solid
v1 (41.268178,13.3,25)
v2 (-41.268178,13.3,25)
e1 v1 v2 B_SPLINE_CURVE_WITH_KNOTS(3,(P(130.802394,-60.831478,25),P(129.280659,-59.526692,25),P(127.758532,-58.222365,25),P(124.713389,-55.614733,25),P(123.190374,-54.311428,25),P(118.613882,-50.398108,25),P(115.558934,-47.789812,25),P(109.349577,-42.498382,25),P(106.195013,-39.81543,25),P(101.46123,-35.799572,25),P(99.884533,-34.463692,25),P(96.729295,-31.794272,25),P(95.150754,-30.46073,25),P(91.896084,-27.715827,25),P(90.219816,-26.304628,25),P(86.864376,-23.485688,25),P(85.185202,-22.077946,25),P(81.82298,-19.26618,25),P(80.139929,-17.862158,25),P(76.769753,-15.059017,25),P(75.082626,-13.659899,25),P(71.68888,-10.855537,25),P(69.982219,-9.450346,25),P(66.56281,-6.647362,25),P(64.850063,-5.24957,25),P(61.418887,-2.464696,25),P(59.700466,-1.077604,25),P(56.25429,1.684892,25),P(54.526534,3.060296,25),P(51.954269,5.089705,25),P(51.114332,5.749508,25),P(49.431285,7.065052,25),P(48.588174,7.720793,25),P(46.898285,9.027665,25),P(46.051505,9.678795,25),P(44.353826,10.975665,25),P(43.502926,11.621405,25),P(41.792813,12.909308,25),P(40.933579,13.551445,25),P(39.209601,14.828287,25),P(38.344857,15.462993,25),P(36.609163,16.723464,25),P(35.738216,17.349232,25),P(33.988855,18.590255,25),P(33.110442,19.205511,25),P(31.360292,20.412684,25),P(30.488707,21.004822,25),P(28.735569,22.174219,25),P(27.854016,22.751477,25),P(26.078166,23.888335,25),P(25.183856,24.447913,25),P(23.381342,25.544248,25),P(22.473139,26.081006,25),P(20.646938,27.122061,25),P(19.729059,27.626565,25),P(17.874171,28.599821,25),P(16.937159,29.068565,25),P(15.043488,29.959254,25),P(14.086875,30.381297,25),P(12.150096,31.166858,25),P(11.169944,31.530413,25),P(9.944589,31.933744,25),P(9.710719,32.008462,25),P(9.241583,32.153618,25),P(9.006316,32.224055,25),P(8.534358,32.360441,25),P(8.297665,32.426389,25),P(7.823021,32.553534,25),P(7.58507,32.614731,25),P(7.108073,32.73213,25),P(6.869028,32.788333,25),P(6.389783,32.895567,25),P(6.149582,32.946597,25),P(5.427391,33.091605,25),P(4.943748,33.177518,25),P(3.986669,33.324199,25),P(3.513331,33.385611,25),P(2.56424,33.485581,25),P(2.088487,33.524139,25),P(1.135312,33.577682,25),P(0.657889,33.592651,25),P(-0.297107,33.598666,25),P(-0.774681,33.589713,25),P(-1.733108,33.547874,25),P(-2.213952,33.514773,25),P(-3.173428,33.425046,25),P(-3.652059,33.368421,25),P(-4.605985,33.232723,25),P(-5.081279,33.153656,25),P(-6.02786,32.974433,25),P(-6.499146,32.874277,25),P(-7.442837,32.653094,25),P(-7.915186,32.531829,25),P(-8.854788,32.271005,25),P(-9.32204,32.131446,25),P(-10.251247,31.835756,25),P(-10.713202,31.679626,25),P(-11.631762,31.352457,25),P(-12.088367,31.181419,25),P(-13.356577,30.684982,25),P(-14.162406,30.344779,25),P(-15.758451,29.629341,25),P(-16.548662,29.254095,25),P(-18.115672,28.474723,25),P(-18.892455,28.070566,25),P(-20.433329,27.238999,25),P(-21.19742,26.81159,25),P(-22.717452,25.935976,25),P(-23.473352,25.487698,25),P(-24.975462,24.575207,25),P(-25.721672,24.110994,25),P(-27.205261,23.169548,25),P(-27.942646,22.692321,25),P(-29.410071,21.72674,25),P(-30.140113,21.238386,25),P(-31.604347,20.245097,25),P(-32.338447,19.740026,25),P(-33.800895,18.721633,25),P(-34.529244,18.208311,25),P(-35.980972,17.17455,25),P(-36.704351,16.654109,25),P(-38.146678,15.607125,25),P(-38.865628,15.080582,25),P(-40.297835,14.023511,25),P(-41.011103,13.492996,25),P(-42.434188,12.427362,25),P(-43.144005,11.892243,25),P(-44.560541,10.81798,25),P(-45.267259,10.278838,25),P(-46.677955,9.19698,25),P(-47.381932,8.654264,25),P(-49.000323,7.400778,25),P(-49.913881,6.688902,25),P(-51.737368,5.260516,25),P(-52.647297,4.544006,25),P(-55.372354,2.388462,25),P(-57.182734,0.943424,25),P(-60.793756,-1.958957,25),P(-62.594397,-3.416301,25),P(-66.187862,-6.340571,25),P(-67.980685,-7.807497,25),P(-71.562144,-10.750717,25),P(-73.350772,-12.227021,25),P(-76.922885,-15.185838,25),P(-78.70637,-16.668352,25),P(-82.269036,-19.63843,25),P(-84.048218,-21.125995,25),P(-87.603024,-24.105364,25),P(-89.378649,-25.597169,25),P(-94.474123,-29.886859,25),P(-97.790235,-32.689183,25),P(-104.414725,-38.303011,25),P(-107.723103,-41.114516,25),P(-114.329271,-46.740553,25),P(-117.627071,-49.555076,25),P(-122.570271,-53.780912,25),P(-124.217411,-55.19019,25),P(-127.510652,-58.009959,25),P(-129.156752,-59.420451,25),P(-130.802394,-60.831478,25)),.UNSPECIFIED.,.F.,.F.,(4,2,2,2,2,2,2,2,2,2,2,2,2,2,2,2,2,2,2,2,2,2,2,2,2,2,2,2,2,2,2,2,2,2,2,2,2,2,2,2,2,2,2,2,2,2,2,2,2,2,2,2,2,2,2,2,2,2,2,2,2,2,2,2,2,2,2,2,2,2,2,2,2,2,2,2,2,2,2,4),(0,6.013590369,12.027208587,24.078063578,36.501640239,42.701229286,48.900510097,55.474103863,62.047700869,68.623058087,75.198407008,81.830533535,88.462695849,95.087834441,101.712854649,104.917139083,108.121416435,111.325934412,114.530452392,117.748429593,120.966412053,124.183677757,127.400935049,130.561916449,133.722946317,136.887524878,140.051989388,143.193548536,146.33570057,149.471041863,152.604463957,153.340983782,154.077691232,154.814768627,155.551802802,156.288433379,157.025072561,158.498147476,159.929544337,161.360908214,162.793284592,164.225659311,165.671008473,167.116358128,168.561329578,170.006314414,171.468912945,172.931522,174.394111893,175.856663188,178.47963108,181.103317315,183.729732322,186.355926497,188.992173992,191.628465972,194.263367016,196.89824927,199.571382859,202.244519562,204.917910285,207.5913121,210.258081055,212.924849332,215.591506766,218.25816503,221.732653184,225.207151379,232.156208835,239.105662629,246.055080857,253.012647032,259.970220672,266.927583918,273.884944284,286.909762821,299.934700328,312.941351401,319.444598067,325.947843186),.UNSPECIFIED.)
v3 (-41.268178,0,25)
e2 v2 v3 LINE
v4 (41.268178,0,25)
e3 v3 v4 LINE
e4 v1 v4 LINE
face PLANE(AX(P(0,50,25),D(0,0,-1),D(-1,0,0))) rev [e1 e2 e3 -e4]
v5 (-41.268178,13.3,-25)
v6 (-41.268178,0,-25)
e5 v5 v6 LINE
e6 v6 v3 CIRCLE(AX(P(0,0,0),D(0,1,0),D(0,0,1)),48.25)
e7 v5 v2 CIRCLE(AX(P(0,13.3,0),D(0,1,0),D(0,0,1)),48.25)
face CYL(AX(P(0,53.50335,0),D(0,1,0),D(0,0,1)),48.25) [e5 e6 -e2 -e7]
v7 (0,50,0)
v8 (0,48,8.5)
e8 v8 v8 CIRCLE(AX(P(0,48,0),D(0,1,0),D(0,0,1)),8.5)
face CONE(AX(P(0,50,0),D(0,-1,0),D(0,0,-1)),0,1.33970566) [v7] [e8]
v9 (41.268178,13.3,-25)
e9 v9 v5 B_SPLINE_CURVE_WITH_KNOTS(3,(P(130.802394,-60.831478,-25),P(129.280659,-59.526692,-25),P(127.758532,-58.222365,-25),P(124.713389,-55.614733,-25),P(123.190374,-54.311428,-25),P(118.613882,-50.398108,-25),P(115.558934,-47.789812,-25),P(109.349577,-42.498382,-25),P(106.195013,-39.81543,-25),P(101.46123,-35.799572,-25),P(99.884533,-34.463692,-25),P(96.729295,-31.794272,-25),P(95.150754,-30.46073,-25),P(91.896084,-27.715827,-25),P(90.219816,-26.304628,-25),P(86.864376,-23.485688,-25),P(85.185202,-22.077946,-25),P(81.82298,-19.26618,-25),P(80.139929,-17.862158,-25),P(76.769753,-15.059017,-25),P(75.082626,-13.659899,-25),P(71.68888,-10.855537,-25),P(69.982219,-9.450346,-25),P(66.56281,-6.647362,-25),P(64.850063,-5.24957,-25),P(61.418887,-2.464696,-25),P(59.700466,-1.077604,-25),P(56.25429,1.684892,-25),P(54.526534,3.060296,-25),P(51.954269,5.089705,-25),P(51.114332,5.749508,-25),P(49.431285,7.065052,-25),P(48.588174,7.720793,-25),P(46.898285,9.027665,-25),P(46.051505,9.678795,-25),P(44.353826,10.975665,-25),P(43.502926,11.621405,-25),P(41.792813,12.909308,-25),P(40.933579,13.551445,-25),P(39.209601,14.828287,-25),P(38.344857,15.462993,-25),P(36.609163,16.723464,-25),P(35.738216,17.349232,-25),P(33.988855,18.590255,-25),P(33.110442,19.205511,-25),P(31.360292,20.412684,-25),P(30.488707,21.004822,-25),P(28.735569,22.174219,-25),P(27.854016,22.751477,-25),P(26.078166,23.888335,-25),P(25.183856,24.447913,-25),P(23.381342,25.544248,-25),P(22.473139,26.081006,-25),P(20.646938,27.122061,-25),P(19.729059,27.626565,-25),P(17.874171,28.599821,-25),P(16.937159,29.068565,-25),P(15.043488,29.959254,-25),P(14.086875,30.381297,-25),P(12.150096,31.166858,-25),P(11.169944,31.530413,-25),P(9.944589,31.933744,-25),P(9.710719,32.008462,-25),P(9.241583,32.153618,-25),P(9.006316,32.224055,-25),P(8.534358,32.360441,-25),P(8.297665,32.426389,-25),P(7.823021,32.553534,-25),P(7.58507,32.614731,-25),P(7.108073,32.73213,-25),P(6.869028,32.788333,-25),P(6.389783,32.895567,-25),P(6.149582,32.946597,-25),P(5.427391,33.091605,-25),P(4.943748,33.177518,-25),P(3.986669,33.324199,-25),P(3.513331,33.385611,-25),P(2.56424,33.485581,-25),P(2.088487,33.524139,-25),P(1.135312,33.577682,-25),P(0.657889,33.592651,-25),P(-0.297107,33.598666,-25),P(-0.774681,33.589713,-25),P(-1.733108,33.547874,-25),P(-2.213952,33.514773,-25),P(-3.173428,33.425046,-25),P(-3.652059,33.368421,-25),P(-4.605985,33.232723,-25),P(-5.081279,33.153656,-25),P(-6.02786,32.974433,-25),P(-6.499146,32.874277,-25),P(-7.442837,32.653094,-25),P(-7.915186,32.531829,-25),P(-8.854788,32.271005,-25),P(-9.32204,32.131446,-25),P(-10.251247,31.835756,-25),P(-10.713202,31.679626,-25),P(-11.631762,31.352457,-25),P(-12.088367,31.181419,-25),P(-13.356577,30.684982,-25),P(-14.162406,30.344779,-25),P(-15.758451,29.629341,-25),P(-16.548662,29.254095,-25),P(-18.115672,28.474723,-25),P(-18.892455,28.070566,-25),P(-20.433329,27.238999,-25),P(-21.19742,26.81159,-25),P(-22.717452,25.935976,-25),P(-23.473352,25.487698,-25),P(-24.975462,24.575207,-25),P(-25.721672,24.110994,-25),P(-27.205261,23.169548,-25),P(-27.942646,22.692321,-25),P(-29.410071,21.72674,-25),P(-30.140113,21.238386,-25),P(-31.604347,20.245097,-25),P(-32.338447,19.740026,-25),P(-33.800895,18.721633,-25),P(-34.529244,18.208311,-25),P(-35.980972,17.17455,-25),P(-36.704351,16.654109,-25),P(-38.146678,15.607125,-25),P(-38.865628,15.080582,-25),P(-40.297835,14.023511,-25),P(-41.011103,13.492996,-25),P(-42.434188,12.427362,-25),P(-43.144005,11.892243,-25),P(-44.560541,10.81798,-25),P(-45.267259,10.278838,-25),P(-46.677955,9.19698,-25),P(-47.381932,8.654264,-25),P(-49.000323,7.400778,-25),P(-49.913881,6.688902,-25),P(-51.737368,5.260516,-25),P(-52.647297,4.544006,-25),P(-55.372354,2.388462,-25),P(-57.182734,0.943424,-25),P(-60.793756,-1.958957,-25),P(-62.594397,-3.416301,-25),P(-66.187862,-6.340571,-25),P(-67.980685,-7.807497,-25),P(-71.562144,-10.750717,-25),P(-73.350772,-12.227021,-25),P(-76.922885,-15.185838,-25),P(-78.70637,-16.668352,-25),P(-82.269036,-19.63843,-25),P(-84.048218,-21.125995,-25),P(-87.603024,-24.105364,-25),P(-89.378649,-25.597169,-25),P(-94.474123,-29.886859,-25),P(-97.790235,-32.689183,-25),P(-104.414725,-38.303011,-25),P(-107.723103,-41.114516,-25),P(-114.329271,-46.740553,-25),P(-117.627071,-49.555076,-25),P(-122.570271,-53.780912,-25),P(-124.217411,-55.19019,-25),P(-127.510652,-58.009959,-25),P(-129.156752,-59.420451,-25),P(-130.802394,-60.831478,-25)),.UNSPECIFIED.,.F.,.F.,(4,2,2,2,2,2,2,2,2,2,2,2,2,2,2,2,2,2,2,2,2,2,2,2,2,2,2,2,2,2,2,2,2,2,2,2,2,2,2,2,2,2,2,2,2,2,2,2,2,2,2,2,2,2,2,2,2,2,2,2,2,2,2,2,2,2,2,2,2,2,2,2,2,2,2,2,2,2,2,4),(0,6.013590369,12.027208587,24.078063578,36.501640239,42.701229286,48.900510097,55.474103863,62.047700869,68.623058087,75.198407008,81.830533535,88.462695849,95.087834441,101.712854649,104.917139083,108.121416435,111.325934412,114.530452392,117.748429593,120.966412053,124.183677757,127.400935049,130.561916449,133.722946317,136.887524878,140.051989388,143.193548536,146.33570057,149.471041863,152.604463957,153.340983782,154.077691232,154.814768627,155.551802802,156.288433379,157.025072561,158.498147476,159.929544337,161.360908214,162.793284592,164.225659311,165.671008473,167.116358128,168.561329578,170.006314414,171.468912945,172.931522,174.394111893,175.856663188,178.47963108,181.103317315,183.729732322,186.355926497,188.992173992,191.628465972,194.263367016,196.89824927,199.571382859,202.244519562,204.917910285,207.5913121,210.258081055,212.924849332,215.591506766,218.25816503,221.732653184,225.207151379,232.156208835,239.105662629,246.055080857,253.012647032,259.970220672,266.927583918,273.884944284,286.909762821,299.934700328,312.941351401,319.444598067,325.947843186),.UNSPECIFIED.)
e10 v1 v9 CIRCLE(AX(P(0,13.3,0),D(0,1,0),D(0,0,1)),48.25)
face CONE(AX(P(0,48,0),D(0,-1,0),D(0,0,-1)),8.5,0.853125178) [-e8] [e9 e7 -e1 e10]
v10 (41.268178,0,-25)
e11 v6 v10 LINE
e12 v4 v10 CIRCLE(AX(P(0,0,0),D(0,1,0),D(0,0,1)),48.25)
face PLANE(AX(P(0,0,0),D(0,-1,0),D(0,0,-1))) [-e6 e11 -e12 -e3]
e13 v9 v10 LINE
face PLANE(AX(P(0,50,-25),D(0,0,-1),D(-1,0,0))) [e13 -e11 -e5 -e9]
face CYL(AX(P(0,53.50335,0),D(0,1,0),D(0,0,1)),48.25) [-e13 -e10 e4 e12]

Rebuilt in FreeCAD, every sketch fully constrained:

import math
import FreeCAD as App
import Part
import Sketcher

V = App.Vector
Q = App.Units.Quantity


def add_polygon(sketch, points):
    """Adds a closed chain of lines whose ends are joined by coincident constraints."""
    first, n = sketch.GeometryCount, len(points)
    for a, b in zip(points, points[1:] + points[:1]):
        sketch.addGeometry(Part.LineSegment(App.Vector(*a, 0), App.Vector(*b, 0)), False)
    for i in range(n):
        sketch.addConstraint(Sketcher.Constraint("Coincident", first + i, 2, first + (i + 1) % n, 1))

doc = App.newDocument("Part")
body = doc.addObject("PartDesign::Body", "Body")

sketch1 = body.newObject("Sketcher::SketchObject", "Sketch")
sketch1.AttachmentSupport = (doc.getObject("XY_Plane"), [""])
sketch1.MapMode = "FlatFace"
add_polygon(sketch1, [(-48, 0), (0, 0), (0, 50), (-8, 48), (-48, 13)])
sketch1.addConstraint(Sketcher.Constraint("Horizontal", 0))
sketch1.addConstraint(Sketcher.Constraint("Vertical", 1))
sketch1.addConstraint(Sketcher.Constraint("Vertical", 4))
sketch1.addConstraint(Sketcher.Constraint("Coincident", 0, 2, -1, 1))
sketch1.addConstraint(Sketcher.Constraint("DistanceY", 1, 1, 1, 2, Q("50 mm")))
sketch1.addConstraint(Sketcher.Constraint("DistanceY", 4, 2, 4, 1, Q("13.3 mm")))
sketch1.addConstraint(Sketcher.Constraint("DistanceY", -1, 1, 2, 2, Q("48 mm")))
sketch1.addConstraint(Sketcher.Constraint("DistanceX", 0, 1, 0, 2, Q("48.25 mm")))
sketch1.addConstraint(Sketcher.Constraint("DistanceX", 2, 2, -1, 1, Q("8.5 mm")))
revolution = body.newObject("PartDesign::Revolution", "Revolution")
revolution.Profile = sketch1
revolution.ReferenceAxis = (sketch1, ["V_Axis"])
revolution.Angle = 360

sketch2 = body.newObject("Sketcher::SketchObject", "Sketch001")
sketch2.AttachmentSupport = (doc.getObject("XZ_Plane"), [""])
sketch2.MapMode = "FlatFace"
sketch2.addGeometry(Part.ArcOfCircle(Part.Circle(V(0, 0, 0), V(0, 0, 1), 48), math.radians(31), math.radians(149)), False)
sketch2.addGeometry(Part.LineSegment(V(-41, 25, 0), V(41, 25, 0)), False)
sketch2.addGeometry(Part.LineSegment(V(41, -25, 0), V(-41, -25, 0)), False)
sketch2.addGeometry(Part.ArcOfCircle(Part.Circle(V(0, 0, 0), V(0, 0, 1), 48), math.radians(-149), math.radians(-31)), False)
sketch2.addConstraint(Sketcher.Constraint("Coincident", 0, 1, 1, 2))
sketch2.addConstraint(Sketcher.Constraint("Coincident", 1, 1, 0, 2))
sketch2.addConstraint(Sketcher.Constraint("Coincident", 2, 1, 3, 2))
sketch2.addConstraint(Sketcher.Constraint("Coincident", 3, 1, 2, 2))
sketch2.addConstraint(Sketcher.Constraint("Horizontal", 1))
sketch2.addConstraint(Sketcher.Constraint("Horizontal", 2))
sketch2.addConstraint(Sketcher.Constraint("Coincident", 0, 3, -1, 1))
sketch2.addConstraint(Sketcher.Constraint("Coincident", 3, 3, -1, 1))
sketch2.addConstraint(Sketcher.Constraint("Equal", 0, 3))
sketch2.addConstraint(Sketcher.Constraint("Vertical", 0, 1, 2, 1))
sketch2.addConstraint(Sketcher.Constraint("Radius", 0, Q("48.25 mm")))
sketch2.addConstraint(Sketcher.Constraint("DistanceY", -1, 1, 0, 1, Q("25 mm")))
pocket1 = body.newObject("PartDesign::Pocket", "Pocket")
pocket1.Profile = sketch2
pocket1.Type = "ThroughAll"

doc.recompute()
